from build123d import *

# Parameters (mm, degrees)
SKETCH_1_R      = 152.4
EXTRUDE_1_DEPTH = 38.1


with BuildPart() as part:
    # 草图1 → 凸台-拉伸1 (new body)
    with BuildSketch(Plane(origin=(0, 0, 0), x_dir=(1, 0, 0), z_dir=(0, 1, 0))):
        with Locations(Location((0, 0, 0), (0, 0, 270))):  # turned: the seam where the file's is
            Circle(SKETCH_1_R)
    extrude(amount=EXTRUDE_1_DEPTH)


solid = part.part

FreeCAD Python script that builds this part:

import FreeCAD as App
import Part
import Sketcher
from FreeCAD import Vector
Q = App.Units.Quantity

doc = App.newDocument("Part")
body = doc.addObject("PartDesign::Body", "Body")

# Sketch on XZ plane
sketch1 = body.newObject("Sketcher::SketchObject", "Sketch")
sketch1.AttachmentSupport = (doc.getObject("XZ_Plane"), [""])
sketch1.MapMode = "FlatFace"
sketch1.addGeometry(Part.Circle(Vector(0, 0, 0), Vector(0, 0, 1), 152), False)
sketch1.addConstraint([
    Sketcher.Constraint("Coincident", 0, 3, -1, 1),
    Sketcher.Constraint("Diameter", 0, Q("12 in")),
])
pad1 = body.newObject("PartDesign::Pad", "Pad")
pad1.Profile = sketch1
pad1.Length = Q("1.5 in")
pad1.Reversed = True

doc.recompute()
